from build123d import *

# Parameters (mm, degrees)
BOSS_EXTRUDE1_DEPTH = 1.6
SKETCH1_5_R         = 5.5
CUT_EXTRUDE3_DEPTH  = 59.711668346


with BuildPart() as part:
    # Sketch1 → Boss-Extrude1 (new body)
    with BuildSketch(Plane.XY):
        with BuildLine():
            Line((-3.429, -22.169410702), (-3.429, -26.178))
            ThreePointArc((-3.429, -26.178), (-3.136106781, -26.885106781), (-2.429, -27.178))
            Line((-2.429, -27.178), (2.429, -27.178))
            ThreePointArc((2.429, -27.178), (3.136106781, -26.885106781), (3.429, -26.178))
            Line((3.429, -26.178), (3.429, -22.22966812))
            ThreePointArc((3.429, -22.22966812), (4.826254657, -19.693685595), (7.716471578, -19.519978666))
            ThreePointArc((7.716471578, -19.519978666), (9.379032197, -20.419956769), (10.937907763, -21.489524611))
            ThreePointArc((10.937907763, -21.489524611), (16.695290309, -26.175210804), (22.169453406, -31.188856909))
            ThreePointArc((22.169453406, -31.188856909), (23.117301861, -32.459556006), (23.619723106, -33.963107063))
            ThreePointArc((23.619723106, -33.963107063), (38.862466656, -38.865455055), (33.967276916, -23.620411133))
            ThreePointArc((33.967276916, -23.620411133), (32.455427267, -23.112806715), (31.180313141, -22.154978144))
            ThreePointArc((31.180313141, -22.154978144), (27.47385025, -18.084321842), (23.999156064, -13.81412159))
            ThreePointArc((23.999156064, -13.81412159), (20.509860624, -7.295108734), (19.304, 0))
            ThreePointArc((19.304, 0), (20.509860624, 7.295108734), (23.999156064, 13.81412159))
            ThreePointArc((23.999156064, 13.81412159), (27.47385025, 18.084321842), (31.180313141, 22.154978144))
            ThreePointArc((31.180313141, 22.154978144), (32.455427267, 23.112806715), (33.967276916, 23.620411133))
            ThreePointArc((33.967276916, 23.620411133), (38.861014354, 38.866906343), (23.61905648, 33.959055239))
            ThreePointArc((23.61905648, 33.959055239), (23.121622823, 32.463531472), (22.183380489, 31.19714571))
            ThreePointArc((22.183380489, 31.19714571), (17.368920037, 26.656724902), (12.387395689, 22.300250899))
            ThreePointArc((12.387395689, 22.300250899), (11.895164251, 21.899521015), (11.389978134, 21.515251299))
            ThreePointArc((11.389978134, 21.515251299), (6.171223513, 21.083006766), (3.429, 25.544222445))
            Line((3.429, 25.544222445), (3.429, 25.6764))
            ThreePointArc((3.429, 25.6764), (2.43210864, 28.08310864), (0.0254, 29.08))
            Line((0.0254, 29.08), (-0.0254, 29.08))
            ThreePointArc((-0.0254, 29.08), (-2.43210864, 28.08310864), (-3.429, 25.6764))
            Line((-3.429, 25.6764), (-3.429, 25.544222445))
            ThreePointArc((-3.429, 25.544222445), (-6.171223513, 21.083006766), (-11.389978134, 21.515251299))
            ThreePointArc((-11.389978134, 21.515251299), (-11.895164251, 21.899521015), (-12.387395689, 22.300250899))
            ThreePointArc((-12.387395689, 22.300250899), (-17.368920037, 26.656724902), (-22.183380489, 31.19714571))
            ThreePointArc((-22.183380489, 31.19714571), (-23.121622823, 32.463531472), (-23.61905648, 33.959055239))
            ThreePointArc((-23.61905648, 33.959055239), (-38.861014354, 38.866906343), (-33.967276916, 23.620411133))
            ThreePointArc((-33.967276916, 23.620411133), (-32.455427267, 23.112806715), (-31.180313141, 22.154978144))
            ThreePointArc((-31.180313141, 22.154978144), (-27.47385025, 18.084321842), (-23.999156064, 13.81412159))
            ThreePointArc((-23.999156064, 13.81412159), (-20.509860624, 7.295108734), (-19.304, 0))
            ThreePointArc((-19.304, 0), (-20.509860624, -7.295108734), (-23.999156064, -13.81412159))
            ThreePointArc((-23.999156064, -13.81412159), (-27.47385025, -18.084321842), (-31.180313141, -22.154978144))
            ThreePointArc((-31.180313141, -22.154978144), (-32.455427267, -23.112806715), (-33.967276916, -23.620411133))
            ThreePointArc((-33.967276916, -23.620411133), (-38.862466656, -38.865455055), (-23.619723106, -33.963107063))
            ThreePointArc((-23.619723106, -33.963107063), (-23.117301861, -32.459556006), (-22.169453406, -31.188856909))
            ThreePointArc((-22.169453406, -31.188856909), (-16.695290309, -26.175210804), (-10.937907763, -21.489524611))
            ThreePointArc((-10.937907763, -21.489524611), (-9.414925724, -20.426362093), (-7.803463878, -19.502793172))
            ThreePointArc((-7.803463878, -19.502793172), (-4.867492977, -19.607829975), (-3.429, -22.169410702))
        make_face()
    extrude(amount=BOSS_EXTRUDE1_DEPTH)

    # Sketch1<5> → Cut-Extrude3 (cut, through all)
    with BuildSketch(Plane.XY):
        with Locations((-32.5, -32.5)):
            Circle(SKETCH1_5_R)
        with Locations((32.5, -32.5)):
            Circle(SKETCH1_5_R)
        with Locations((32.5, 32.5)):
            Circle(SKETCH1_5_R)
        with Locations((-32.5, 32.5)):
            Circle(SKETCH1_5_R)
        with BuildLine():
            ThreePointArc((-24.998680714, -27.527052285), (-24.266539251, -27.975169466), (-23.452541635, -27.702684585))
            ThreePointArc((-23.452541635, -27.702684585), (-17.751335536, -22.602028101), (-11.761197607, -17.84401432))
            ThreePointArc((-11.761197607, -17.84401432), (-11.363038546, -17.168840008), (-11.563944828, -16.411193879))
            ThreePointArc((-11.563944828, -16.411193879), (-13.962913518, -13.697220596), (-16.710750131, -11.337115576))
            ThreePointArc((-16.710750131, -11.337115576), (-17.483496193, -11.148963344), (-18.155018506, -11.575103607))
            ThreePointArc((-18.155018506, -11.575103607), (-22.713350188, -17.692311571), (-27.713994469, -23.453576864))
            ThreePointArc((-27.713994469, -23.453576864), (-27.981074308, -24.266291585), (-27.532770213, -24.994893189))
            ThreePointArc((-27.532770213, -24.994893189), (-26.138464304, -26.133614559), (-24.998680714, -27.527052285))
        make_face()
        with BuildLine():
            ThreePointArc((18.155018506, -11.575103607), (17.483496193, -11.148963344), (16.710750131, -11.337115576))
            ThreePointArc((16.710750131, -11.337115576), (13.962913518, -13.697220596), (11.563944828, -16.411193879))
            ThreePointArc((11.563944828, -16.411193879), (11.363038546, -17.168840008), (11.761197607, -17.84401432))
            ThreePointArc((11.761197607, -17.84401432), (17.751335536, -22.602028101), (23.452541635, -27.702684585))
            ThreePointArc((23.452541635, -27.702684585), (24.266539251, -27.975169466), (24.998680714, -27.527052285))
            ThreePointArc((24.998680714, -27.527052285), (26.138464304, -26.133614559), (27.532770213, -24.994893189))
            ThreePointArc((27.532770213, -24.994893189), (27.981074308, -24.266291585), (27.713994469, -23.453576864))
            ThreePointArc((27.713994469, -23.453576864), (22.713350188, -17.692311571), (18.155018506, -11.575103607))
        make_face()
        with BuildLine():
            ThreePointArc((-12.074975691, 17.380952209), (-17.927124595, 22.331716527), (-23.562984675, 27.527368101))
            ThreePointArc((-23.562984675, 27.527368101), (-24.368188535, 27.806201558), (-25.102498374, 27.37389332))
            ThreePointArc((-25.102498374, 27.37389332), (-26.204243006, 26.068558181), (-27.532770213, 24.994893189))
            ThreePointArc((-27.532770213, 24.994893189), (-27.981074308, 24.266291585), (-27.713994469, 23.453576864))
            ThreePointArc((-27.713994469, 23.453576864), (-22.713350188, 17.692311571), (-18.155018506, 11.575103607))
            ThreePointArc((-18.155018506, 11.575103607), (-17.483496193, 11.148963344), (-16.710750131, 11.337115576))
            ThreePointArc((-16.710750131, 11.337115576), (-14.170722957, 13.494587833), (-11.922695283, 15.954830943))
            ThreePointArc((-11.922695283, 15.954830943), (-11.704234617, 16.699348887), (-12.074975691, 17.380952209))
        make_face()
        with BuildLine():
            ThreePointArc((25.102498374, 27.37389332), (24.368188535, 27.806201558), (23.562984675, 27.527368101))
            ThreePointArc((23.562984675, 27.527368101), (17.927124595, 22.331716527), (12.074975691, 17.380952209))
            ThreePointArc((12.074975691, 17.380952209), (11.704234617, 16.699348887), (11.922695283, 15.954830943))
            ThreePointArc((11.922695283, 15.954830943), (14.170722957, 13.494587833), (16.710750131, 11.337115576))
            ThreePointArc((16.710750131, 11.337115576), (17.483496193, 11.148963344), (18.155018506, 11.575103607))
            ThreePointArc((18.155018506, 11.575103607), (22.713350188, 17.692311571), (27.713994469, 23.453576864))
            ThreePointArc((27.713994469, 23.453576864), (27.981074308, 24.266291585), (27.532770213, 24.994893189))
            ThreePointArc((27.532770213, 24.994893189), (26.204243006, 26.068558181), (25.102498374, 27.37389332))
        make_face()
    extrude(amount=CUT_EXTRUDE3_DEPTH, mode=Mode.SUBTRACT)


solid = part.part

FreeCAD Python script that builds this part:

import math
import FreeCAD as App
import Part
import Sketcher

doc = App.newDocument("Part")
body = doc.addObject("PartDesign::Body", "Body")

sketch1 = body.newObject("Sketcher::SketchObject", "Sketch")
sketch1.AttachmentSupport = (doc.getObject("XY_Plane"), [""])
sketch1.MapMode = "FlatFace"
sketch1.addGeometry(Part.LineSegment(App.Vector(-3.429, -22.169411, 0), App.Vector(-3.429, -26.178, 0)), False)
sketch1.addGeometry(Part.ArcOfCircle(Part.Circle(App.Vector(-2.429, -26.178, 0), App.Vector(0, 0, 1), 1), math.radians(-180), math.radians(-90)), False)
sketch1.addGeometry(Part.LineSegment(App.Vector(-2.429, -27.178, 0), App.Vector(2.429, -27.178, 0)), False)
sketch1.addGeometry(Part.ArcOfCircle(Part.Circle(App.Vector(2.429, -26.178, 0), App.Vector(0, 0, 1), 1), math.radians(-90), math.radians(0)), False)
sketch1.addGeometry(Part.LineSegment(App.Vector(3.429, -26.178, 0), App.Vector(3.429, -22.229668, 0)), False)
sketch1.addGeometry(Part.ArcOfCircle(Part.Circle(App.Vector(6.429, -22.229668, 0), App.Vector(0, 0, 1), 3), math.radians(64.585915), math.radians(180)), False)
sketch1.addGeometry(Part.ArcOfCircle(Part.Circle(App.Vector(0, -35.760525, 0), App.Vector(0, 0, 1), 17.980525), math.radians(52.531894), math.radians(64.585915)), False)
sketch1.addGeometry(Part.ArcOfCircle(Part.Circle(App.Vector(-66.418052, -122.418052, 0), App.Vector(0, 0, 1), 127.163329), math.radians(45.841673), math.radians(52.531894)), False)
sketch1.addGeometry(Part.ArcOfCircle(Part.Circle(App.Vector(18.686236, -34.775944, 0), App.Vector(0, 0, 1), 5), math.radians(9.355952), math.radians(45.841673)), False)
sketch1.addGeometry(Part.ArcOfCircle(Part.Circle(App.Vector(32.5, -32.5, 0), App.Vector(0, 0, 1), 9), math.radians(-170.644048), math.radians(80.617143)), False)
sketch1.addGeometry(Part.ArcOfCircle(Part.Circle(App.Vector(34.782431, -18.687306, 0), App.Vector(0, 0, 1), 5), math.radians(-136.089458), math.radians(-99.382857)), False)
sketch1.addGeometry(Part.ArcOfCircle(Part.Circle(App.Vector(102.574159, 46.574159, 0), App.Vector(0, 0, 1), 99.099826), math.radians(-142.456168), math.radians(-136.089458)), False)
sketch1.addGeometry(Part.ArcOfCircle(Part.Circle(App.Vector(41.973581, 0, 0), App.Vector(0, 0, 1), 22.669581), math.radians(-180), math.radians(-142.456168)), False)
sketch1.addGeometry(Part.ArcOfCircle(Part.Circle(App.Vector(41.973581, 0, 0), App.Vector(0, 0, 1), 22.669581), math.radians(142.456168), math.radians(180)), False)
sketch1.addGeometry(Part.ArcOfCircle(Part.Circle(App.Vector(102.574159, -46.574159, 0), App.Vector(0, 0, 1), 99.099826), math.radians(136.089458), math.radians(142.456168)), False)
sketch1.addGeometry(Part.ArcOfCircle(Part.Circle(App.Vector(34.782431, 18.687306, 0), App.Vector(0, 0, 1), 5), math.radians(99.382857), math.radians(136.089458)), False)
sketch1.addGeometry(Part.ArcOfCircle(Part.Circle(App.Vector(32.5, 32.5, 0), App.Vector(0, 0, 1), 9), math.radians(-80.617143), math.radians(170.67019)), False)
sketch1.addGeometry(Part.ArcOfCircle(Part.Circle(App.Vector(18.685199, 34.769641, 0), App.Vector(0, 0, 1), 5), math.radians(-45.602168), math.radians(-9.32981)), False)
sketch1.addGeometry(Part.ArcOfCircle(Part.Circle(App.Vector(-101.122642, 157.122642, 0), App.Vector(0, 0, 1), 176.24303), math.radians(-49.905212), math.radians(-45.602168)), False)
sketch1.addGeometry(Part.ArcOfCircle(Part.Circle(App.Vector(-0.000001, 37.013473, 0), App.Vector(0, 0, 1), 19.233473), math.radians(-53.687028), math.radians(-49.905212)), False)
sketch1.addGeometry(Part.ArcOfCircle(Part.Circle(App.Vector(8.429, 25.544222, 0), App.Vector(0, 0, 1), 5), math.radians(180), math.radians(306.312972)), False)
sketch1.addGeometry(Part.LineSegment(App.Vector(3.429, 25.544222, 0), App.Vector(3.429, 25.6764, 0)), False)
sketch1.addGeometry(Part.ArcOfCircle(Part.Circle(App.Vector(0.0254, 25.6764, 0), App.Vector(0, 0, 1), 3.4036), math.radians(0), math.radians(90)), False)
sketch1.addGeometry(Part.LineSegment(App.Vector(0.0254, 29.08, 0), App.Vector(-0.0254, 29.08, 0)), False)
sketch1.addGeometry(Part.ArcOfCircle(Part.Circle(App.Vector(-0.0254, 25.6764, 0), App.Vector(0, 0, 1), 3.4036), math.radians(90), math.radians(180)), False)
sketch1.addGeometry(Part.LineSegment(App.Vector(-3.429, 25.6764, 0), App.Vector(-3.429, 25.544222, 0)), False)
sketch1.addGeometry(Part.ArcOfCircle(Part.Circle(App.Vector(-8.429, 25.544222, 0), App.Vector(0, 0, 1), 5), math.radians(-126.312972), math.radians(0)), False)
sketch1.addGeometry(Part.ArcOfCircle(Part.Circle(App.Vector(0.000001, 37.013473, 0), App.Vector(0, 0, 1), 19.233473), math.radians(-130.094788), math.radians(-126.312972)), False)
sketch1.addGeometry(Part.ArcOfCircle(Part.Circle(App.Vector(101.122642, 157.122642, 0), App.Vector(0, 0, 1), 176.24303), math.radians(-134.397832), math.radians(-130.094788)), False)
sketch1.addGeometry(Part.ArcOfCircle(Part.Circle(App.Vector(-18.685199, 34.769641, 0), App.Vector(0, 0, 1), 5), math.radians(-170.67019), math.radians(-134.397832)), False)
sketch1.addGeometry(Part.ArcOfCircle(Part.Circle(App.Vector(-32.5, 32.5, 0), App.Vector(0, 0, 1), 9), math.radians(9.32981), math.radians(260.617143)), False)
sketch1.addGeometry(Part.ArcOfCircle(Part.Circle(App.Vector(-34.782431, 18.687306, 0), App.Vector(0, 0, 1), 5), math.radians(43.910542), math.radians(80.617143)), False)
sketch1.addGeometry(Part.ArcOfCircle(Part.Circle(App.Vector(-102.574159, -46.574159, 0), App.Vector(0, 0, 1), 99.099826), math.radians(37.543832), math.radians(43.910542)), False)
sketch1.addGeometry(Part.ArcOfCircle(Part.Circle(App.Vector(-41.973581, 0, 0), App.Vector(0, 0, 1), 22.669581), math.radians(0), math.radians(37.543832)), False)
sketch1.addGeometry(Part.ArcOfCircle(Part.Circle(App.Vector(-41.973581, 0, 0), App.Vector(0, 0, 1), 22.669581), math.radians(-37.543832), math.radians(0)), False)
sketch1.addGeometry(Part.ArcOfCircle(Part.Circle(App.Vector(-102.574159, 46.574159, 0), App.Vector(0, 0, 1), 99.099826), math.radians(-43.910542), math.radians(-37.543832)), False)
sketch1.addGeometry(Part.ArcOfCircle(Part.Circle(App.Vector(-34.782431, -18.687306, 0), App.Vector(0, 0, 1), 5), math.radians(-80.617143), math.radians(-43.910542)), False)
sketch1.addGeometry(Part.ArcOfCircle(Part.Circle(App.Vector(-32.5, -32.5, 0), App.Vector(0, 0, 1), 9), math.radians(99.382857), math.radians(350.644048)), False)
sketch1.addGeometry(Part.ArcOfCircle(Part.Circle(App.Vector(-18.686236, -34.775944, 0), App.Vector(0, 0, 1), 5), math.radians(134.158327), math.radians(170.644048)), False)
sketch1.addGeometry(Part.ArcOfCircle(Part.Circle(App.Vector(66.418052, -122.418052, 0), App.Vector(0, 0, 1), 127.163329), math.radians(127.468106), math.radians(134.158327)), False)
sketch1.addGeometry(Part.ArcOfCircle(Part.Circle(App.Vector(1.759744, -38.056513, 0), App.Vector(0, 0, 1), 20.87332), math.radians(117.268093), math.radians(127.468106)), False)
sketch1.addGeometry(Part.ArcOfCircle(Part.Circle(App.Vector(-6.429, -22.169411, 0), App.Vector(0, 0, 1), 3), math.radians(0), math.radians(117.268093)), False)
sketch1.addConstraint(Sketcher.Constraint("Coincident", 0, 2, 1, 1))
sketch1.addConstraint(Sketcher.Constraint("Coincident", 1, 2, 2, 1))
sketch1.addConstraint(Sketcher.Constraint("Coincident", 2, 2, 3, 1))
sketch1.addConstraint(Sketcher.Constraint("Coincident", 3, 2, 4, 1))
sketch1.addConstraint(Sketcher.Constraint("Coincident", 4, 2, 5, 2))
sketch1.addConstraint(Sketcher.Constraint("Coincident", 5, 1, 6, 2))
sketch1.addConstraint(Sketcher.Constraint("Coincident", 6, 1, 7, 2))
sketch1.addConstraint(Sketcher.Constraint("Coincident", 7, 1, 8, 2))
sketch1.addConstraint(Sketcher.Constraint("Coincident", 8, 1, 9, 1))
sketch1.addConstraint(Sketcher.Constraint("Coincident", 9, 2, 10, 2))
sketch1.addConstraint(Sketcher.Constraint("Coincident", 10, 1, 11, 2))
sketch1.addConstraint(Sketcher.Constraint("Coincident", 11, 1, 12, 2))
sketch1.addConstraint(Sketcher.Constraint("Coincident", 12, 1, 13, 2))
sketch1.addConstraint(Sketcher.Constraint("Coincident", 13, 1, 14, 2))
sketch1.addConstraint(Sketcher.Constraint("Coincident", 14, 1, 15, 2))
sketch1.addConstraint(Sketcher.Constraint("Coincident", 15, 1, 16, 1))
sketch1.addConstraint(Sketcher.Constraint("Coincident", 16, 2, 17, 2))
sketch1.addConstraint(Sketcher.Constraint("Coincident", 17, 1, 18, 2))
sketch1.addConstraint(Sketcher.Constraint("Coincident", 18, 1, 19, 2))
sketch1.addConstraint(Sketcher.Constraint("Coincident", 19, 1, 20, 2))
sketch1.addConstraint(Sketcher.Constraint("Coincident", 20, 1, 21, 1))
sketch1.addConstraint(Sketcher.Constraint("Coincident", 21, 2, 22, 1))
sketch1.addConstraint(Sketcher.Constraint("Coincident", 22, 2, 23, 1))
sketch1.addConstraint(Sketcher.Constraint("Coincident", 23, 2, 24, 1))
sketch1.addConstraint(Sketcher.Constraint("Coincident", 24, 2, 25, 1))
sketch1.addConstraint(Sketcher.Constraint("Coincident", 25, 2, 26, 2))
sketch1.addConstraint(Sketcher.Constraint("Coincident", 26, 1, 27, 2))
sketch1.addConstraint(Sketcher.Constraint("Coincident", 27, 1, 28, 2))
sketch1.addConstraint(Sketcher.Constraint("Coincident", 28, 1, 29, 2))
sketch1.addConstraint(Sketcher.Constraint("Coincident", 29, 1, 30, 1))
sketch1.addConstraint(Sketcher.Constraint("Coincident", 30, 2, 31, 2))
sketch1.addConstraint(Sketcher.Constraint("Coincident", 31, 1, 32, 2))
sketch1.addConstraint(Sketcher.Constraint("Coincident", 32, 1, 33, 2))
sketch1.addConstraint(Sketcher.Constraint("Coincident", 33, 1, 34, 2))
sketch1.addConstraint(Sketcher.Constraint("Coincident", 34, 1, 35, 2))
sketch1.addConstraint(Sketcher.Constraint("Coincident", 35, 1, 36, 2))
sketch1.addConstraint(Sketcher.Constraint("Coincident", 36, 1, 37, 1))
sketch1.addConstraint(Sketcher.Constraint("Coincident", 37, 2, 38, 2))
sketch1.addConstraint(Sketcher.Constraint("Coincident", 38, 1, 39, 2))
sketch1.addConstraint(Sketcher.Constraint("Coincident", 39, 1, 40, 2))
sketch1.addConstraint(Sketcher.Constraint("Coincident", 40, 1, 41, 2))
sketch1.addConstraint(Sketcher.Constraint("Coincident", 41, 1, 0, 1))
sketch1.addConstraint(Sketcher.Constraint("Vertical", 0))
sketch1.addConstraint(Sketcher.Constraint("Horizontal", 2))
sketch1.addConstraint(Sketcher.Constraint("Vertical", 4))
sketch1.addConstraint(Sketcher.Constraint("Vertical", 21))
sketch1.addConstraint(Sketcher.Constraint("Horizontal", 23))
sketch1.addConstraint(Sketcher.Constraint("Vertical", 25))
sketch1.addConstraint(Sketcher.Constraint("Coincident", 13, 3, 12, 3))
sketch1.addConstraint(Sketcher.Constraint("Coincident", 27, 3, 19, 3))
sketch1.addConstraint(Sketcher.Constraint("Coincident", 34, 3, 33, 3))
sketch1.addConstraint(Sketcher.Constraint("PointOnObject", 6, 3, -2))
sketch1.addConstraint(Sketcher.Constraint("PointOnObject", 12, 3, -1))
sketch1.addConstraint(Sketcher.Constraint("PointOnObject", 19, 3, -2))
sketch1.addConstraint(Sketcher.Constraint("PointOnObject", 33, 3, -1))
sketch1.addConstraint(Sketcher.Constraint("PointOnObject", 12, 1, -1))
sketch1.addConstraint(Sketcher.Constraint("PointOnObject", 33, 1, -1))
sketch1.addConstraint(Sketcher.Constraint("Radius", 1, 1.0))
sketch1.addConstraint(Sketcher.Constraint("Radius", 3, 1.0))
sketch1.addConstraint(Sketcher.Constraint("Radius", 5, 3.0))
sketch1.addConstraint(Sketcher.Constraint("Radius", 8, 5.0))
sketch1.addConstraint(Sketcher.Constraint("Radius", 9, 9.0))
sketch1.addConstraint(Sketcher.Constraint("Radius", 10, 5.0))
sketch1.addConstraint(Sketcher.Constraint("Radius", 15, 5.0))
sketch1.addConstraint(Sketcher.Constraint("Radius", 16, 9.0))
sketch1.addConstraint(Sketcher.Constraint("Radius", 17, 5.0))
sketch1.addConstraint(Sketcher.Constraint("Radius", 20, 5.0))
sketch1.addConstraint(Sketcher.Constraint("Radius", 26, 5.0))
sketch1.addConstraint(Sketcher.Constraint("Radius", 29, 5.0))
sketch1.addConstraint(Sketcher.Constraint("Radius", 30, 9.0))
sketch1.addConstraint(Sketcher.Constraint("Radius", 31, 5.0))
sketch1.addConstraint(Sketcher.Constraint("Radius", 36, 5.0))
sketch1.addConstraint(Sketcher.Constraint("Radius", 37, 9.0))
sketch1.addConstraint(Sketcher.Constraint("Radius", 38, 5.0))
sketch1.addConstraint(Sketcher.Constraint("Radius", 41, 3.0))
sketch1.addConstraint(Sketcher.Constraint("DistanceX", -1, 1, 9, 3, 32.5))
sketch1.addConstraint(Sketcher.Constraint("DistanceY", 9, 3, -1, 1, 32.5))
sketch1.addConstraint(Sketcher.Constraint("DistanceX", -1, 1, 16, 3, 32.5))
sketch1.addConstraint(Sketcher.Constraint("DistanceY", -1, 1, 16, 3, 32.5))
sketch1.addConstraint(Sketcher.Constraint("DistanceX", 30, 3, -1, 1, 32.5))
sketch1.addConstraint(Sketcher.Constraint("DistanceY", -1, 1, 30, 3, 32.5))
sketch1.addConstraint(Sketcher.Constraint("DistanceX", 37, 3, -1, 1, 32.5))
sketch1.addConstraint(Sketcher.Constraint("DistanceY", 37, 3, -1, 1, 32.5))
sketch1.addConstraint(Sketcher.Constraint("Radius", 22, 3.4036))
sketch1.addConstraint(Sketcher.Constraint("Radius", 24, 3.4036))
sketch1.addConstraint(Sketcher.Constraint("DistanceX", 2, 1, 2, 2, 4.858))
sketch1.addConstraint(Sketcher.Constraint("DistanceY", -1, 1, 22, 2, 29.08))
sketch1.addConstraint(Sketcher.Constraint("Radius", 7, 127.163329))
sketch1.addConstraint(Sketcher.Constraint("Radius", 12, 22.669581))
sketch1.addConstraint(Sketcher.Constraint("Radius", 18, 176.24303))
sketch1.addConstraint(Sketcher.Constraint("Radius", 28, 176.24303))
sketch1.addConstraint(Sketcher.Constraint("Radius", 33, 22.669581))
sketch1.addConstraint(Sketcher.Constraint("Radius", 39, 127.163329))
sketch1.addConstraint(Sketcher.Constraint("Radius", 40, 20.87332))
sketch1.addConstraint(Sketcher.Constraint("DistanceX", 23, 2, 23, 1, 0.0508))
sketch1.addConstraint(Sketcher.Constraint("DistanceX", 1, 3, -1, 1, 2.429))
sketch1.addConstraint(Sketcher.Constraint("DistanceY", 1, 3, -1, 1, 26.178))
sketch1.addConstraint(Sketcher.Constraint("DistanceX", -1, 1, 3, 3, 2.429))
sketch1.addConstraint(Sketcher.Constraint("DistanceX", -1, 1, 20, 3, 8.429))
sketch1.addConstraint(Sketcher.Constraint("DistanceX", 26, 3, -1, 1, 8.429))
sketch1.addConstraint(Sketcher.Constraint("DistanceY", 0, 2, -1, 1, 26.178))
sketch1.addConstraint(Sketcher.Constraint("DistanceX", 1, 2, -1, 1, 2.429))
sketch1.addConstraint(Sketcher.Constraint("DistanceY", 3, 2, -1, 1, 26.178))
sketch1.addConstraint(Sketcher.Constraint("DistanceX", -1, 1, 12, 1, 19.304))
sketch1.addConstraint(Sketcher.Constraint("DistanceX", 33, 1, -1, 1, 19.304))
sketch1.addConstraint(Sketcher.Constraint("Radius", 6, 17.980525))
sketch1.addConstraint(Sketcher.Constraint("Radius", 11, 99.099826))
sketch1.addConstraint(Sketcher.Constraint("Radius", 14, 99.099826))
sketch1.addConstraint(Sketcher.Constraint("Radius", 19, 19.233473))
sketch1.addConstraint(Sketcher.Constraint("Radius", 27, 19.233473))
sketch1.addConstraint(Sketcher.Constraint("Radius", 32, 99.099826))
sketch1.addConstraint(Sketcher.Constraint("Radius", 35, 99.099826))
sketch1.addConstraint(Sketcher.Constraint("DistanceY", 0, 2, 0, 1, 4.008589))
sketch1.addConstraint(Sketcher.Constraint("DistanceY", 4, 1, 4, 2, 3.948332))
sketch1.addConstraint(Sketcher.Constraint("DistanceX", -1, 1, 17, 3, 18.685199))
sketch1.addConstraint(Sketcher.Constraint("DistanceX", 29, 3, -1, 1, 18.685199))
sketch1.addConstraint(Sketcher.Constraint("DistanceY", -1, 1, 21, 2, 25.6764))
sketch1.addConstraint(Sketcher.Constraint("DistanceX", -1, 1, 22, 2, 0.0254))
sketch1.addConstraint(Sketcher.Constraint("DistanceY", -1, 1, 24, 2, 25.6764))
sketch1.addConstraint(Sketcher.Constraint("DistanceY", 21, 1, 21, 2, 0.132178))
sketch1.addConstraint(Sketcher.Constraint("DistanceY", 25, 2, 25, 1, 0.132178))
sketch1.addConstraint(Sketcher.Constraint("DistanceY", 5, 3, -1, 1, 22.229668))
sketch1.addConstraint(Sketcher.Constraint("DistanceX", -1, 1, 10, 3, 34.782431))
sketch1.addConstraint(Sketcher.Constraint("DistanceX", -1, 1, 14, 3, 102.574159))
sketch1.addConstraint(Sketcher.Constraint("DistanceX", 18, 3, -1, 1, 101.122642))
sketch1.addConstraint(Sketcher.Constraint("DistanceX", 31, 3, -1, 1, 34.782431))
sketch1.addConstraint(Sketcher.Constraint("DistanceX", 35, 3, -1, 1, 102.574159))
sketch1.addConstraint(Sketcher.Constraint("DistanceY", 41, 3, -1, 1, 22.169411))
sketch1.addConstraint(Sketcher.Constraint("DistanceX", -1, 1, 5, 1, 7.716472))
sketch1.addConstraint(Sketcher.Constraint("DistanceY", 9, 2, -1, 1, 23.620411))
sketch1.addConstraint(Sketcher.Constraint("DistanceY", 10, 1, -1, 1, 22.154978))
sketch1.addConstraint(Sketcher.Constraint("DistanceY", 11, 1, -1, 1, 13.814122))
sketch1.addConstraint(Sketcher.Constraint("DistanceY", -1, 1, 13, 1, 13.814122))
sketch1.addConstraint(Sketcher.Constraint("DistanceY", -1, 1, 14, 1, 22.154978))
sketch1.addConstraint(Sketcher.Constraint("DistanceY", -1, 1, 15, 1, 23.620411))
sketch1.addConstraint(Sketcher.Constraint("DistanceX", -1, 1, 17, 1, 22.18338))
sketch1.addConstraint(Sketcher.Constraint("DistanceY", -1, 1, 18, 1, 22.300251))
sketch1.addConstraint(Sketcher.Constraint("DistanceX", -1, 1, 19, 1, 11.389978))
sketch1.addConstraint(Sketcher.Constraint("DistanceX", 26, 1, -1, 1, 11.389978))
sketch1.addConstraint(Sketcher.Constraint("DistanceY", -1, 1, 27, 1, 22.300251))
sketch1.addConstraint(Sketcher.Constraint("DistanceX", 28, 1, -1, 1, 22.18338))
sketch1.addConstraint(Sketcher.Constraint("DistanceY", -1, 1, 30, 2, 23.620411))
sketch1.addConstraint(Sketcher.Constraint("DistanceY", -1, 1, 31, 1, 22.154978))
sketch1.addConstraint(Sketcher.Constraint("DistanceY", -1, 1, 32, 1, 13.814122))
sketch1.addConstraint(Sketcher.Constraint("DistanceY", 34, 1, -1, 1, 13.814122))
sketch1.addConstraint(Sketcher.Constraint("DistanceY", 35, 1, -1, 1, 22.154978))
sketch1.addConstraint(Sketcher.Constraint("DistanceY", 36, 1, -1, 1, 23.620411))
sketch1.addConstraint(Sketcher.Constraint("DistanceX", 7, 3, -1, 1, 66.418052))
sketch1.addConstraint(Sketcher.Constraint("DistanceX", 38, 3, -1, 1, 18.686236))
sketch1.addConstraint(Sketcher.Constraint("DistanceX", -1, 1, 39, 3, 66.418052))
sketch1.addConstraint(Sketcher.Constraint("DistanceX", -1, 1, 6, 1, 10.937908))
sketch1.addConstraint(Sketcher.Constraint("DistanceX", -1, 1, 7, 1, 22.169453))
sketch1.addConstraint(Sketcher.Constraint("DistanceX", -1, 1, 8, 1, 23.619723))
sketch1.addConstraint(Sketcher.Constraint("DistanceX", -1, 1, 16, 2, 23.619056))
sketch1.addConstraint(Sketcher.Constraint("DistanceX", 29, 1, -1, 1, 23.619056))
sketch1.addConstraint(Sketcher.Constraint("DistanceX", 37, 2, -1, 1, 23.619723))
sketch1.addConstraint(Sketcher.Constraint("DistanceX", 38, 1, -1, 1, 22.169453))
sketch1.addConstraint(Sketcher.Constraint("DistanceX", 39, 1, -1, 1, 10.937908))
sketch1.addConstraint(Sketcher.Constraint("DistanceX", 40, 1, -1, 1, 7.803464))
pad1 = body.newObject("PartDesign::Pad", "Pad")
pad1.Profile = sketch1
pad1.Length = 1.6

sketch2 = body.newObject("Sketcher::SketchObject", "Sketch001")
sketch2.AttachmentSupport = (doc.getObject("XY_Plane"), [""])
sketch2.MapMode = "FlatFace"
sketch2.addGeometry(Part.Circle(App.Vector(-32.5, -32.5, 0), App.Vector(0, 0, 1), 5.5), False)
sketch2.addGeometry(Part.Circle(App.Vector(32.5, -32.5, 0), App.Vector(0, 0, 1), 5.5), False)
sketch2.addGeometry(Part.Circle(App.Vector(32.5, 32.5, 0), App.Vector(0, 0, 1), 5.5), False)
sketch2.addGeometry(Part.Circle(App.Vector(-32.5, 32.5, 0), App.Vector(0, 0, 1), 5.5), False)
sketch2.addGeometry(Part.ArcOfCircle(Part.Circle(App.Vector(-24.151865, -26.965662, 0), App.Vector(0, 0, 1), 1.016), math.radians(-146.457887), math.radians(-46.50348)), False)
sketch2.addGeometry(Part.ArcOfCircle(Part.Circle(App.Vector(66.418052, -122.418052, 0), App.Vector(0, 0, 1), 130.566935), math.radians(126.781684), math.radians(133.49652)), False)
sketch2.addGeometry(Part.ArcOfCircle(Part.Circle(App.Vector(-12.369545, -17.030277, 0), App.Vector(0, 0, 1), 1.016), math.radians(-53.218316), math.radians(37.541328)), False)
sketch2.addGeometry(Part.ArcOfCircle(Part.Circle(App.Vector(-32.5, -32.5, 0), App.Vector(0, 0, 1), 26.403941), math.radians(37.541328), math.radians(53.274038)), False)
sketch2.addGeometry(Part.ArcOfCircle(Part.Circle(App.Vector(-17.318306, -12.151444, 0), App.Vector(0, 0, 1), 1.016), math.radians(53.274038), math.radians(145.440304)), False)
sketch2.addGeometry(Part.ArcOfCircle(Part.Circle(App.Vector(-102.574159, 46.574159, 0), App.Vector(0, 0, 1), 102.508185), math.radians(-43.089729), math.radians(-34.559696)), False)
sketch2.addGeometry(Part.ArcOfCircle(Part.Circle(App.Vector(-26.972025, -24.14765, 0), App.Vector(0, 0, 1), 1.016), math.radians(136.910271), math.radians(236.50155)), False)
sketch2.addGeometry(Part.ArcOfCircle(Part.Circle(App.Vector(-32.5, -32.5, 0), App.Vector(0, 0, 1), 9), math.radians(33.542113), math.radians(56.50155)), False)
sketch2.addGeometry(Part.ArcOfCircle(Part.Circle(App.Vector(17.318306, -12.151444, 0), App.Vector(0, 0, 1), 1.016), math.radians(34.559696), math.radians(126.725962)), False)
sketch2.addGeometry(Part.ArcOfCircle(Part.Circle(App.Vector(32.5, -32.5, 0), App.Vector(0, 0, 1), 26.403941), math.radians(126.725962), math.radians(142.458672)), False)
sketch2.addGeometry(Part.ArcOfCircle(Part.Circle(App.Vector(12.369545, -17.030277, 0), App.Vector(0, 0, 1), 1.016), math.radians(142.458672), math.radians(233.218316)), False)
sketch2.addGeometry(Part.ArcOfCircle(Part.Circle(App.Vector(-66.418052, -122.418052, 0), App.Vector(0, 0, 1), 130.566935), math.radians(46.50348), math.radians(53.218316)), False)
sketch2.addGeometry(Part.ArcOfCircle(Part.Circle(App.Vector(24.151865, -26.965662, 0), App.Vector(0, 0, 1), 1.016), math.radians(-133.49652), math.radians(-33.542113)), False)
sketch2.addGeometry(Part.ArcOfCircle(Part.Circle(App.Vector(32.5, -32.5, 0), App.Vector(0, 0, 1), 9), math.radians(123.49845), math.radians(146.457887)), False)
sketch2.addGeometry(Part.ArcOfCircle(Part.Circle(App.Vector(26.972025, -24.14765, 0), App.Vector(0, 0, 1), 1.016), math.radians(-56.50155), math.radians(43.089729)), False)
sketch2.addGeometry(Part.ArcOfCircle(Part.Circle(App.Vector(102.574159, 46.574159, 0), App.Vector(0, 0, 1), 102.508185), math.radians(-145.440304), math.radians(-136.910271)), False)
sketch2.addGeometry(Part.ArcOfCircle(Part.Circle(App.Vector(101.122642, 157.122643, 0), App.Vector(0, 0, 1), 179.837262), math.radians(-133.893872), math.radians(-129.009168)), False)
sketch2.addGeometry(Part.ArcOfCircle(Part.Circle(App.Vector(-24.267403, 26.795213, 0), App.Vector(0, 0, 1), 1.016), math.radians(46.106128), math.radians(145.279935)), False)
sketch2.addGeometry(Part.ArcOfCircle(Part.Circle(App.Vector(-32.5, 32.5, 0), App.Vector(0, 0, 1), 9), math.radians(-56.50155), math.radians(-34.720065)), False)
sketch2.addGeometry(Part.ArcOfCircle(Part.Circle(App.Vector(-26.972025, 24.14765, 0), App.Vector(0, 0, 1), 1.016), math.radians(123.49845), math.radians(223.089729)), False)
sketch2.addGeometry(Part.ArcOfCircle(Part.Circle(App.Vector(-102.574159, -46.574159, 0), App.Vector(0, 0, 1), 102.508185), math.radians(34.559696), math.radians(43.089729)), False)
sketch2.addGeometry(Part.ArcOfCircle(Part.Circle(App.Vector(-17.318306, 12.151444, 0), App.Vector(0, 0, 1), 1.016), math.radians(-145.440304), math.radians(-53.274038)), False)
sketch2.addGeometry(Part.ArcOfCircle(Part.Circle(App.Vector(-32.5, 32.5, 0), App.Vector(0, 0, 1), 26.403941), math.radians(-53.274038), math.radians(-38.801)), False)
sketch2.addGeometry(Part.ArcOfCircle(Part.Circle(App.Vector(-12.714492, 16.591474, 0), App.Vector(0, 0, 1), 1.016), math.radians(-38.801), math.radians(50.990832)), False)
sketch2.addGeometry(Part.ArcOfCircle(Part.Circle(App.Vector(24.267403, 26.795213, 0), App.Vector(0, 0, 1), 1.016), math.radians(34.720065), math.radians(133.893872)), False)
sketch2.addGeometry(Part.ArcOfCircle(Part.Circle(App.Vector(-101.122642, 157.122643, 0), App.Vector(0, 0, 1), 179.837262), math.radians(-50.990832), math.radians(-46.106128)), False)
sketch2.addGeometry(Part.ArcOfCircle(Part.Circle(App.Vector(12.714492, 16.591474, 0), App.Vector(0, 0, 1), 1.016), math.radians(129.009168), math.radians(218.801)), False)
sketch2.addGeometry(Part.ArcOfCircle(Part.Circle(App.Vector(32.5, 32.5, 0), App.Vector(0, 0, 1), 26.403941), math.radians(-141.199), math.radians(-126.725962)), False)
sketch2.addGeometry(Part.ArcOfCircle(Part.Circle(App.Vector(17.318306, 12.151444, 0), App.Vector(0, 0, 1), 1.016), math.radians(-126.725962), math.radians(-34.559696)), False)
sketch2.addGeometry(Part.ArcOfCircle(Part.Circle(App.Vector(102.574159, -46.574159, 0), App.Vector(0, 0, 1), 102.508185), math.radians(136.910271), math.radians(145.440304)), False)
sketch2.addGeometry(Part.ArcOfCircle(Part.Circle(App.Vector(26.972025, 24.14765, 0), App.Vector(0, 0, 1), 1.016), math.radians(-43.089729), math.radians(56.50155)), False)
sketch2.addGeometry(Part.ArcOfCircle(Part.Circle(App.Vector(32.5, 32.5, 0), App.Vector(0, 0, 1), 9), math.radians(-145.279935), math.radians(-123.49845)), False)
sketch2.addConstraint(Sketcher.Constraint("Coincident", 4, 2, 5, 2))
sketch2.addConstraint(Sketcher.Constraint("Coincident", 5, 1, 6, 1))
sketch2.addConstraint(Sketcher.Constraint("Coincident", 6, 2, 7, 1))
sketch2.addConstraint(Sketcher.Constraint("Coincident", 7, 2, 8, 1))
sketch2.addConstraint(Sketcher.Constraint("Coincident", 8, 2, 9, 2))
sketch2.addConstraint(Sketcher.Constraint("Coincident", 9, 1, 10, 1))
sketch2.addConstraint(Sketcher.Constraint("Coincident", 10, 2, 11, 2))
sketch2.addConstraint(Sketcher.Constraint("Coincident", 11, 1, 4, 1))
sketch2.addConstraint(Sketcher.Constraint("Coincident", 12, 2, 13, 1))
sketch2.addConstraint(Sketcher.Constraint("Coincident", 13, 2, 14, 1))
sketch2.addConstraint(Sketcher.Constraint("Coincident", 14, 2, 15, 2))
sketch2.addConstraint(Sketcher.Constraint("Coincident", 15, 1, 16, 1))
sketch2.addConstraint(Sketcher.Constraint("Coincident", 16, 2, 17, 2))
sketch2.addConstraint(Sketcher.Constraint("Coincident", 17, 1, 18, 1))
sketch2.addConstraint(Sketcher.Constraint("Coincident", 18, 2, 19, 2))
sketch2.addConstraint(Sketcher.Constraint("Coincident", 19, 1, 12, 1))
sketch2.addConstraint(Sketcher.Constraint("Coincident", 20, 1, 21, 1))
sketch2.addConstraint(Sketcher.Constraint("Coincident", 21, 2, 22, 2))
sketch2.addConstraint(Sketcher.Constraint("Coincident", 22, 1, 23, 1))
sketch2.addConstraint(Sketcher.Constraint("Coincident", 23, 2, 24, 2))
sketch2.addConstraint(Sketcher.Constraint("Coincident", 24, 1, 25, 1))
sketch2.addConstraint(Sketcher.Constraint("Coincident", 25, 2, 26, 1))
sketch2.addConstraint(Sketcher.Constraint("Coincident", 26, 2, 27, 1))
sketch2.addConstraint(Sketcher.Constraint("Coincident", 27, 2, 20, 2))
sketch2.addConstraint(Sketcher.Constraint("Coincident", 28, 2, 29, 2))
sketch2.addConstraint(Sketcher.Constraint("Coincident", 29, 1, 30, 1))
sketch2.addConstraint(Sketcher.Constraint("Coincident", 30, 2, 31, 1))
sketch2.addConstraint(Sketcher.Constraint("Coincident", 31, 2, 32, 1))
sketch2.addConstraint(Sketcher.Constraint("Coincident", 32, 2, 33, 2))
sketch2.addConstraint(Sketcher.Constraint("Coincident", 33, 1, 34, 1))
sketch2.addConstraint(Sketcher.Constraint("Coincident", 34, 2, 35, 2))
sketch2.addConstraint(Sketcher.Constraint("Coincident", 35, 1, 28, 1))
sketch2.addConstraint(Sketcher.Constraint("Coincident", 7, 3, 0, 3))
sketch2.addConstraint(Sketcher.Constraint("Coincident", 11, 3, 0, 3))
sketch2.addConstraint(Sketcher.Constraint("Coincident", 13, 3, 1, 3))
sketch2.addConstraint(Sketcher.Constraint("Coincident", 17, 3, 1, 3))
sketch2.addConstraint(Sketcher.Constraint("Coincident", 22, 3, 3, 3))
sketch2.addConstraint(Sketcher.Constraint("Coincident", 26, 3, 3, 3))
sketch2.addConstraint(Sketcher.Constraint("Coincident", 31, 3, 2, 3))
sketch2.addConstraint(Sketcher.Constraint("Coincident", 35, 3, 2, 3))
sketch2.addConstraint(Sketcher.Constraint("Diameter", 0, 11.0))
sketch2.addConstraint(Sketcher.Constraint("Diameter", 1, 11.0))
sketch2.addConstraint(Sketcher.Constraint("Diameter", 2, 11.0))
sketch2.addConstraint(Sketcher.Constraint("Diameter", 3, 11.0))
sketch2.addConstraint(Sketcher.Constraint("Radius", 11, 9.0))
sketch2.addConstraint(Sketcher.Constraint("Radius", 17, 9.0))
sketch2.addConstraint(Sketcher.Constraint("Radius", 22, 9.0))
sketch2.addConstraint(Sketcher.Constraint("Radius", 35, 9.0))
sketch2.addConstraint(Sketcher.Constraint("Radius", 4, 1.016))
sketch2.addConstraint(Sketcher.Constraint("Radius", 6, 1.016))
sketch2.addConstraint(Sketcher.Constraint("Radius", 8, 1.016))
sketch2.addConstraint(Sketcher.Constraint("Radius", 10, 1.016))
sketch2.addConstraint(Sketcher.Constraint("Radius", 12, 1.016))
sketch2.addConstraint(Sketcher.Constraint("Radius", 14, 1.016))
sketch2.addConstraint(Sketcher.Constraint("Radius", 16, 1.016))
sketch2.addConstraint(Sketcher.Constraint("Radius", 18, 1.016))
sketch2.addConstraint(Sketcher.Constraint("Radius", 21, 1.016))
sketch2.addConstraint(Sketcher.Constraint("Radius", 23, 1.016))
sketch2.addConstraint(Sketcher.Constraint("Radius", 25, 1.016))
sketch2.addConstraint(Sketcher.Constraint("Radius", 27, 1.016))
sketch2.addConstraint(Sketcher.Constraint("Radius", 28, 1.016))
sketch2.addConstraint(Sketcher.Constraint("Radius", 30, 1.016))
sketch2.addConstraint(Sketcher.Constraint("Radius", 32, 1.016))
sketch2.addConstraint(Sketcher.Constraint("Radius", 34, 1.016))
sketch2.addConstraint(Sketcher.Constraint("DistanceX", 0, 3, -1, 1, 32.5))
sketch2.addConstraint(Sketcher.Constraint("DistanceY", 0, 3, -1, 1, 32.5))
sketch2.addConstraint(Sketcher.Constraint("DistanceX", -1, 1, 1, 3, 32.5))
sketch2.addConstraint(Sketcher.Constraint("DistanceY", 1, 3, -1, 1, 32.5))
sketch2.addConstraint(Sketcher.Constraint("DistanceX", -1, 1, 2, 3, 32.5))
sketch2.addConstraint(Sketcher.Constraint("DistanceY", -1, 1, 2, 3, 32.5))
sketch2.addConstraint(Sketcher.Constraint("DistanceX", 3, 3, -1, 1, 32.5))
sketch2.addConstraint(Sketcher.Constraint("DistanceY", -1, 1, 3, 3, 32.5))
sketch2.addConstraint(Sketcher.Constraint("Radius", 7, 26.403941))
sketch2.addConstraint(Sketcher.Constraint("Radius", 13, 26.403941))
sketch2.addConstraint(Sketcher.Constraint("Radius", 20, 179.837262))
sketch2.addConstraint(Sketcher.Constraint("Radius", 26, 26.403941))
sketch2.addConstraint(Sketcher.Constraint("Radius", 29, 179.837262))
sketch2.addConstraint(Sketcher.Constraint("Radius", 31, 26.403941))
sketch2.addConstraint(Sketcher.Constraint("Radius", 5, 130.566935))
sketch2.addConstraint(Sketcher.Constraint("Radius", 9, 102.508185))
sketch2.addConstraint(Sketcher.Constraint("Radius", 15, 130.566935))
sketch2.addConstraint(Sketcher.Constraint("Radius", 19, 102.508185))
sketch2.addConstraint(Sketcher.Constraint("Radius", 24, 102.508185))
sketch2.addConstraint(Sketcher.Constraint("Radius", 33, 102.508185))
sketch2.addConstraint(Sketcher.Constraint("DistanceX", 21, 2, -1, 1, 25.102498))
sketch2.addConstraint(Sketcher.Constraint("DistanceX", -1, 1, 35, 1, 25.102498))
sketch2.addConstraint(Sketcher.Constraint("DistanceY", 4, 3, -1, 1, 26.965662))
sketch2.addConstraint(Sketcher.Constraint("DistanceX", 9, 3, -1, 1, 102.574159))
sketch2.addConstraint(Sketcher.Constraint("DistanceY", -1, 1, 9, 3, 46.574159))
sketch2.addConstraint(Sketcher.Constraint("DistanceY", 16, 3, -1, 1, 26.965662))
sketch2.addConstraint(Sketcher.Constraint("DistanceY", 18, 3, -1, 1, 24.14765))
sketch2.addConstraint(Sketcher.Constraint("DistanceX", -1, 1, 19, 3, 102.574159))
sketch2.addConstraint(Sketcher.Constraint("DistanceY", -1, 1, 23, 3, 24.14765))
sketch2.addConstraint(Sketcher.Constraint("DistanceX", 24, 3, -1, 1, 102.574159))
sketch2.addConstraint(Sketcher.Constraint("DistanceX", 27, 3, -1, 1, 12.714492))
sketch2.addConstraint(Sketcher.Constraint("DistanceX", -1, 1, 30, 3, 12.714492))
sketch2.addConstraint(Sketcher.Constraint("DistanceX", -1, 1, 33, 3, 102.574159))
sketch2.addConstraint(Sketcher.Constraint("DistanceY", 33, 3, -1, 1, 46.574159))
sketch2.addConstraint(Sketcher.Constraint("DistanceX", 4, 2, -1, 1, 23.452542))
sketch2.addConstraint(Sketcher.Constraint("DistanceX", 7, 2, -1, 1, 16.71075))
sketch2.addConstraint(Sketcher.Constraint("DistanceX", 8, 2, -1, 1, 18.155019))
sketch2.addConstraint(Sketcher.Constraint("DistanceX", 10, 2, -1, 1, 27.53277))
sketch2.addConstraint(Sketcher.Constraint("DistanceX", 11, 1, -1, 1, 24.998681))
sketch2.addConstraint(Sketcher.Constraint("DistanceX", -1, 1, 12, 2, 16.71075))
sketch2.addConstraint(Sketcher.Constraint("DistanceX", -1, 1, 15, 1, 23.452542))
sketch2.addConstraint(Sketcher.Constraint("DistanceX", -1, 1, 16, 2, 24.998681))
sketch2.addConstraint(Sketcher.Constraint("DistanceX", -1, 1, 17, 1, 27.53277))
sketch2.addConstraint(Sketcher.Constraint("DistanceX", -1, 1, 19, 1, 18.155019))
sketch2.addConstraint(Sketcher.Constraint("DistanceY", -1, 1, 20, 1, 27.527368))
sketch2.addConstraint(Sketcher.Constraint("DistanceX", 22, 1, -1, 1, 27.53277))
sketch2.addConstraint(Sketcher.Constraint("DistanceX", 24, 1, -1, 1, 18.155019))
sketch2.addConstraint(Sketcher.Constraint("DistanceX", 25, 2, -1, 1, 16.71075))
sketch2.addConstraint(Sketcher.Constraint("DistanceY", -1, 1, 26, 2, 15.954831))
sketch2.addConstraint(Sketcher.Constraint("DistanceY", -1, 1, 28, 2, 27.527368))
sketch2.addConstraint(Sketcher.Constraint("DistanceY", -1, 1, 30, 2, 15.954831))
sketch2.addConstraint(Sketcher.Constraint("DistanceX", -1, 1, 31, 2, 16.71075))
sketch2.addConstraint(Sketcher.Constraint("DistanceX", -1, 1, 32, 2, 18.155019))
sketch2.addConstraint(Sketcher.Constraint("DistanceX", -1, 1, 34, 2, 27.53277))
sketch2.addConstraint(Sketcher.Constraint("DistanceX", -1, 1, 5, 3, 66.418052))
sketch2.addConstraint(Sketcher.Constraint("DistanceX", -1, 1, 14, 3, 12.369545))
sketch2.addConstraint(Sketcher.Constraint("DistanceX", -1, 1, 20, 3, 101.122642))
sketch2.addConstraint(Sketcher.Constraint("DistanceX", -1, 1, 28, 3, 24.267403))
sketch2.addConstraint(Sketcher.Constraint("DistanceX", 5, 1, -1, 1, 11.761198))
sketch2.addConstraint(Sketcher.Constraint("DistanceX", 6, 2, -1, 1, 11.563945))
sketch2.addConstraint(Sketcher.Constraint("DistanceX", 9, 1, -1, 1, 27.713994))
sketch2.addConstraint(Sketcher.Constraint("DistanceX", -1, 1, 13, 2, 11.563945))
sketch2.addConstraint(Sketcher.Constraint("DistanceX", -1, 1, 14, 2, 11.761198))
sketch2.addConstraint(Sketcher.Constraint("DistanceX", -1, 1, 18, 2, 27.713994))
sketch2.addConstraint(Sketcher.Constraint("DistanceX", 23, 2, -1, 1, 27.713994))
sketch2.addConstraint(Sketcher.Constraint("DistanceX", 27, 2, -1, 1, 12.074976))
sketch2.addConstraint(Sketcher.Constraint("DistanceX", -1, 1, 29, 1, 12.074976))
sketch2.addConstraint(Sketcher.Constraint("DistanceX", -1, 1, 33, 1, 27.713994))
pocket1 = body.newObject("PartDesign::Pocket", "Pocket")
pocket1.Profile = sketch2
pocket1.Type = "ThroughAll"
pocket1.Reversed = True

doc.recompute()
